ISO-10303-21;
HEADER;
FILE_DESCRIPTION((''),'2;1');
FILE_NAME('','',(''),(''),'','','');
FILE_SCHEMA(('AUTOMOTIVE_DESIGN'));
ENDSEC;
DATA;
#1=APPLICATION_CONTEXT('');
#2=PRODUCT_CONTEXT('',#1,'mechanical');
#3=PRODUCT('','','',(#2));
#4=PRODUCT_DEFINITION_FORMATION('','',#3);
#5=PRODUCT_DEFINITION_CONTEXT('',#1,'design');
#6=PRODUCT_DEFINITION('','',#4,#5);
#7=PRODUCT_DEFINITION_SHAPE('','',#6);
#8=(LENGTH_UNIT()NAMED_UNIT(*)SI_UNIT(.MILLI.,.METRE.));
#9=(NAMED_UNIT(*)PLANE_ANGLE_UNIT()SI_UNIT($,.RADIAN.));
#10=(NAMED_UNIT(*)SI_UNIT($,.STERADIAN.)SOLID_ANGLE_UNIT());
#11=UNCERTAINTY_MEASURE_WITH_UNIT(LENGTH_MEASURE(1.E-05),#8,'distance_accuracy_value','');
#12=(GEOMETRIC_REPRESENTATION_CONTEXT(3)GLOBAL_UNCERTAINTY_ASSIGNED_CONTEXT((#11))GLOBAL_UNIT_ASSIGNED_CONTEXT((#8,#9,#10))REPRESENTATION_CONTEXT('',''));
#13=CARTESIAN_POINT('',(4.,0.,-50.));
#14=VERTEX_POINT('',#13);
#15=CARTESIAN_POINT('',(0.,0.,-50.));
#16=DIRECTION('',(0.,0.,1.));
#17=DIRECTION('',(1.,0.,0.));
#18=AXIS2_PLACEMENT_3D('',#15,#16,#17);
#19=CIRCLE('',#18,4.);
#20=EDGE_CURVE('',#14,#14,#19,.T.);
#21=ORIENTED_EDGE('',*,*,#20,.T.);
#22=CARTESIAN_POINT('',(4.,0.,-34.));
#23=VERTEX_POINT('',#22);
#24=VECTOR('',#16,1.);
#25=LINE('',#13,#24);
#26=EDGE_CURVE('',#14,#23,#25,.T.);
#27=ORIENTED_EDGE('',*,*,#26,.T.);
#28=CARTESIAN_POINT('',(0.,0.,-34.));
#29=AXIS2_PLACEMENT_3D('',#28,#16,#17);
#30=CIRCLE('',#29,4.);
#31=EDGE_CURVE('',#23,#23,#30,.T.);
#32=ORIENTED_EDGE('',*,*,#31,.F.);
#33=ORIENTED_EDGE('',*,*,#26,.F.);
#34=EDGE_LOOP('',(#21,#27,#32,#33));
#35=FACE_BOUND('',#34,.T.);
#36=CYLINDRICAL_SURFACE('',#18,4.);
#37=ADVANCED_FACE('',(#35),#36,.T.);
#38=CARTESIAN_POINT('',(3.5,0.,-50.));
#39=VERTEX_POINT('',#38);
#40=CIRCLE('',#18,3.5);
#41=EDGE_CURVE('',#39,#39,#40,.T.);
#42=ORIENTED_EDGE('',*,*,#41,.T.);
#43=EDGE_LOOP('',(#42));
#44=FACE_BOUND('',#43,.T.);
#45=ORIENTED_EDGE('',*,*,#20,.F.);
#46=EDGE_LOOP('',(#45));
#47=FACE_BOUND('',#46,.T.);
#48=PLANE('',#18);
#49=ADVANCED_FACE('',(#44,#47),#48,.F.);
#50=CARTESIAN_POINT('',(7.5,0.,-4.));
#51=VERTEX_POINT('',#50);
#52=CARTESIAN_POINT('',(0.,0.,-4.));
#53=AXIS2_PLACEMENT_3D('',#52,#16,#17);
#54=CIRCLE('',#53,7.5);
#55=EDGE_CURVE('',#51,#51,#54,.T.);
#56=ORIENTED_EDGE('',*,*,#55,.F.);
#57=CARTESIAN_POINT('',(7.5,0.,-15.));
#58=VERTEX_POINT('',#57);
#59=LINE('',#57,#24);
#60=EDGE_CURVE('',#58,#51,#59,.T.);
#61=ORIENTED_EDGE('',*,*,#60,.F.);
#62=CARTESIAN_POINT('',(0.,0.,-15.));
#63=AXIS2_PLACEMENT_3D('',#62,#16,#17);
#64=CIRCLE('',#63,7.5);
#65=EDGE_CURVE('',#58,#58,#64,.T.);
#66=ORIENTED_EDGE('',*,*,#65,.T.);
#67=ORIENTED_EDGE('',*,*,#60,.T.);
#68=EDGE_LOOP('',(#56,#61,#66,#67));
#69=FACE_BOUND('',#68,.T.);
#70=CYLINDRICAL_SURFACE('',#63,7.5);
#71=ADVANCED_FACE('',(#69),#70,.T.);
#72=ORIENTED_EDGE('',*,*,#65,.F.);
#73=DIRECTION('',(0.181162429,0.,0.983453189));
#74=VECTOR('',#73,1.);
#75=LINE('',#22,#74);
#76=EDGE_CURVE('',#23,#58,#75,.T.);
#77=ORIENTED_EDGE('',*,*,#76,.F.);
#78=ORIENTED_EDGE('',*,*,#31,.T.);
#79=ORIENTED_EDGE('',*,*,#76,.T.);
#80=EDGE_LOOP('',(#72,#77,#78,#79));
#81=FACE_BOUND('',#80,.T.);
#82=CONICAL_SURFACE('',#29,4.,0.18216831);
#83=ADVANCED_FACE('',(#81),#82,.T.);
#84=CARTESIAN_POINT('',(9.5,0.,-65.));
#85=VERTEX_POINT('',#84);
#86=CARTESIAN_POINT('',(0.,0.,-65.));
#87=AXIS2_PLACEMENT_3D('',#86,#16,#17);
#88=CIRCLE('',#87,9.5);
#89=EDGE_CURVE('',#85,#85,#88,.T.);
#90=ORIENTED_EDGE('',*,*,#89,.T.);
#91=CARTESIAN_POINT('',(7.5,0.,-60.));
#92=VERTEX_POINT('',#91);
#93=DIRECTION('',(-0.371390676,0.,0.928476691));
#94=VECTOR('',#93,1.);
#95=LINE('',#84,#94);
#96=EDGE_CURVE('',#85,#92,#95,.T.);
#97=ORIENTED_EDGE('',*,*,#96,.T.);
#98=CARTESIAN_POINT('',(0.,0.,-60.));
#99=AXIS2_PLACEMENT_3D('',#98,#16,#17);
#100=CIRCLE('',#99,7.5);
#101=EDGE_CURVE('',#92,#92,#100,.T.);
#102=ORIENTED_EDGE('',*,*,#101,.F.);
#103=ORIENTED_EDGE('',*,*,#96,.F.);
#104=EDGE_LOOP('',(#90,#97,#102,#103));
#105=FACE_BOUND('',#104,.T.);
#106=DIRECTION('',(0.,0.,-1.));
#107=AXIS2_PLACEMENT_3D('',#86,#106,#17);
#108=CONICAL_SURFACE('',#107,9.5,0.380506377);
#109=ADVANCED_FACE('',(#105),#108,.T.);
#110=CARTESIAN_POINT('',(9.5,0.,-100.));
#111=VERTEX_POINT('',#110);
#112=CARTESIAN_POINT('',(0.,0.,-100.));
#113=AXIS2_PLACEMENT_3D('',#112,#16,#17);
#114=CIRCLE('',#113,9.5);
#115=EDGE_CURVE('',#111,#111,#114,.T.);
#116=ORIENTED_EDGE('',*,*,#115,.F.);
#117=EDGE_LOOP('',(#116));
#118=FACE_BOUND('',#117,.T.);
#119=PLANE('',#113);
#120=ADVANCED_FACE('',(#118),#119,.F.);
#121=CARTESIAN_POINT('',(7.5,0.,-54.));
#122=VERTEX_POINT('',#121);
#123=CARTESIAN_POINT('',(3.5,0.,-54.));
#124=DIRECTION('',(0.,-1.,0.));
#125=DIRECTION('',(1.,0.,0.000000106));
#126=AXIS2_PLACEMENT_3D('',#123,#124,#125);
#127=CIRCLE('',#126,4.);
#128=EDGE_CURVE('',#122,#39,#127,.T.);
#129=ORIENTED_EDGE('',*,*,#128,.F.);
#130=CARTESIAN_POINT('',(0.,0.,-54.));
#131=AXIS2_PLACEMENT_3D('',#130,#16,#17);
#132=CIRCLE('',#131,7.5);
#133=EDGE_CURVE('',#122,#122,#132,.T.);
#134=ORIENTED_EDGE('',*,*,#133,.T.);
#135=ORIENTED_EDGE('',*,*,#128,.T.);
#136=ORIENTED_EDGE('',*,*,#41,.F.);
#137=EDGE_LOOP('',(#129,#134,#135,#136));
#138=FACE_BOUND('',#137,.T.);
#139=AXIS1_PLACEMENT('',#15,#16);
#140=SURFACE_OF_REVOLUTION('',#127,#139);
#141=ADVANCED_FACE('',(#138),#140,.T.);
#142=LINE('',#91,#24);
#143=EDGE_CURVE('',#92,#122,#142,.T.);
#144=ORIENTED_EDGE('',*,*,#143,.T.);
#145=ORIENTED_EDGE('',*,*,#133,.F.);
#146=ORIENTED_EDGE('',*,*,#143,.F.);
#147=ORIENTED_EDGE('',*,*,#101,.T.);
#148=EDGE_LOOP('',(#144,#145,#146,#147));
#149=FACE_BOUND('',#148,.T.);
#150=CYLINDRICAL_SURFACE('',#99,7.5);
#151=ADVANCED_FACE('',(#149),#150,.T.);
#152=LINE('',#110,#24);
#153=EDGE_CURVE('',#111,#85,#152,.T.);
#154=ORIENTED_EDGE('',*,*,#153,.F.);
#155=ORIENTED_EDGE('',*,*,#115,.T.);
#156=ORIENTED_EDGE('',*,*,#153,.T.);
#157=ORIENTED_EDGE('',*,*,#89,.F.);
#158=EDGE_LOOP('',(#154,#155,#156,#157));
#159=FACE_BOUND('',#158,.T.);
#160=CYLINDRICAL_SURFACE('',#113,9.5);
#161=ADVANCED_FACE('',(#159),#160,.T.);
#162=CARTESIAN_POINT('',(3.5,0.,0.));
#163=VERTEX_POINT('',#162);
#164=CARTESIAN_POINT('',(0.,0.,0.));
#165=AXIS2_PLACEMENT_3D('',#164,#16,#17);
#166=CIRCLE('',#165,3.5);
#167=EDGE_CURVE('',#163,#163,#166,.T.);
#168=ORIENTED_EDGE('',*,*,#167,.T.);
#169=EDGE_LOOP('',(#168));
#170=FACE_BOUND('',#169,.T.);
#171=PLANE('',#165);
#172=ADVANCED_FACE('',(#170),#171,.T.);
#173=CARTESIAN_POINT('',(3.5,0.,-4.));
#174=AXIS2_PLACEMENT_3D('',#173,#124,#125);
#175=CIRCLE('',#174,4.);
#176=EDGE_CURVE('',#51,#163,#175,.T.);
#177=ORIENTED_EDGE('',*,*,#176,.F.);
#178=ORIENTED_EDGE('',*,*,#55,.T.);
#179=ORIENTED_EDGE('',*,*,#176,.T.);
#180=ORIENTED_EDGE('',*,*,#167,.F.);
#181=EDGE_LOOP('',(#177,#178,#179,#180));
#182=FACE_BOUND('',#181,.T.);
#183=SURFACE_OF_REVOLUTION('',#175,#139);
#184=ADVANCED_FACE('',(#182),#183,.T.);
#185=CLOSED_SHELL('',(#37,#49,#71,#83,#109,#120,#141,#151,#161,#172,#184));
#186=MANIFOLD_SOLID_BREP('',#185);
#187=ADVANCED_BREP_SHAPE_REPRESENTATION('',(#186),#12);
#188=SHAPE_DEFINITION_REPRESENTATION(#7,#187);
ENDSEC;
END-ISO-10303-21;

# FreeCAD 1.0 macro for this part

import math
import FreeCAD as App
import Part
import Sketcher
Q = App.Units.Quantity

doc = App.newDocument("Part")
body = doc.addObject("PartDesign::Body", "Body")

sketch1 = body.newObject("Sketcher::SketchObject", "Sketch")
sketch1.AttachmentSupport = (doc.getObject("XZ_Plane"), [""])
sketch1.MapMode = "FlatFace"
sketch1.addGeometry(Part.LineSegment(App.Vector(3.5, 0, 0), App.Vector(0, 0, 0)), False)
sketch1.addGeometry(Part.LineSegment(App.Vector(0, 0, 0), App.Vector(0, -100, 0)), False)
sketch1.addGeometry(Part.LineSegment(App.Vector(0, -100, 0), App.Vector(9.5, -100, 0)), False)
sketch1.addGeometry(Part.LineSegment(App.Vector(9.5, -100, 0), App.Vector(9.5, -65, 0)), False)
sketch1.addGeometry(Part.LineSegment(App.Vector(9.5, -65, 0), App.Vector(7.5, -60, 0)), False)
sketch1.addGeometry(Part.LineSegment(App.Vector(7.5, -60, 0), App.Vector(7.5, -54, 0)), False)
sketch1.addGeometry(Part.ArcOfCircle(Part.Circle(App.Vector(3.5, -54, 0), App.Vector(0, 0, 1), 4), math.radians(0.000006), math.radians(89.999994)), False)
sketch1.addGeometry(Part.LineSegment(App.Vector(3.5, -50, 0), App.Vector(4, -50, 0)), False)
sketch1.addGeometry(Part.LineSegment(App.Vector(4, -50, 0), App.Vector(4, -34, 0)), False)
sketch1.addGeometry(Part.LineSegment(App.Vector(4, -34, 0), App.Vector(7.5, -15, 0)), False)
sketch1.addGeometry(Part.LineSegment(App.Vector(7.5, -15, 0), App.Vector(7.5, -4, 0)), False)
sketch1.addGeometry(Part.ArcOfCircle(Part.Circle(App.Vector(3.5, -4, 0), App.Vector(0, 0, 1), 4), math.radians(0.000006), math.radians(89.999994)), False)
sketch1.addConstraint(Sketcher.Constraint("Coincident", 0, 2, 1, 1))
sketch1.addConstraint(Sketcher.Constraint("Coincident", 1, 2, 2, 1))
sketch1.addConstraint(Sketcher.Constraint("Coincident", 2, 2, 3, 1))
sketch1.addConstraint(Sketcher.Constraint("Coincident", 3, 2, 4, 1))
sketch1.addConstraint(Sketcher.Constraint("Coincident", 4, 2, 5, 1))
sketch1.addConstraint(Sketcher.Constraint("Tangent", 5, 2, 6, 1))
sketch1.addConstraint(Sketcher.Constraint("Tangent", 6, 2, 7, 1))
sketch1.addConstraint(Sketcher.Constraint("Coincident", 7, 2, 8, 1))
sketch1.addConstraint(Sketcher.Constraint("Coincident", 8, 2, 9, 1))
sketch1.addConstraint(Sketcher.Constraint("Coincident", 9, 2, 10, 1))
sketch1.addConstraint(Sketcher.Constraint("Tangent", 10, 2, 11, 1))
sketch1.addConstraint(Sketcher.Constraint("Tangent", 11, 2, 0, 1))
sketch1.addConstraint(Sketcher.Constraint("Horizontal", 0))
sketch1.addConstraint(Sketcher.Constraint("Vertical", 1))
sketch1.addConstraint(Sketcher.Constraint("Horizontal", 2))
sketch1.addConstraint(Sketcher.Constraint("Vertical", 3))
sketch1.addConstraint(Sketcher.Constraint("Vertical", 5))
sketch1.addConstraint(Sketcher.Constraint("Horizontal", 7))
sketch1.addConstraint(Sketcher.Constraint("Vertical", 8))
sketch1.addConstraint(Sketcher.Constraint("Vertical", 10))
sketch1.addConstraint(Sketcher.Constraint("Coincident", 0, 2, -1, 1))
sketch1.addConstraint(Sketcher.Constraint("Equal", 6, 11))
sketch1.addConstraint(Sketcher.Constraint("Vertical", 6, 3, 11, 3))
sketch1.addConstraint(Sketcher.Constraint("Radius", 6, Q("4 mm")))
sketch1.addConstraint(Sketcher.Constraint("DistanceY", 1, 2, 1, 1, Q("100 mm")))
sketch1.addConstraint(Sketcher.Constraint("DistanceY", 3, 1, 3, 2, Q("35 mm")))
sketch1.addConstraint(Sketcher.Constraint("DistanceY", 5, 1, 5, 2, Q("6 mm")))
sketch1.addConstraint(Sketcher.Constraint("DistanceY", 8, 1, 8, 2, Q("16 mm")))
sketch1.addConstraint(Sketcher.Constraint("DistanceY", 10, 1, 10, 2, Q("11 mm")))
sketch1.addConstraint(Sketcher.Constraint("DistanceX", 0, 2, 0, 1, Q("3.5 mm")))
sketch1.addConstraint(Sketcher.Constraint("DistanceX", 2, 1, 2, 2, Q("9.5 mm")))
sketch1.addConstraint(Sketcher.Constraint("DistanceX", 7, 1, 7, 2, Q("0.5 mm")))
sketch1.addConstraint(Sketcher.Constraint("DistanceY", 6, 3, -1, 1, Q("54 mm")))
revolution = body.newObject("PartDesign::Revolution", "Revolution")
revolution.Profile = sketch1
revolution.ReferenceAxis = (sketch1, ["V_Axis"])
revolution.Angle = 360

doc.recompute()
